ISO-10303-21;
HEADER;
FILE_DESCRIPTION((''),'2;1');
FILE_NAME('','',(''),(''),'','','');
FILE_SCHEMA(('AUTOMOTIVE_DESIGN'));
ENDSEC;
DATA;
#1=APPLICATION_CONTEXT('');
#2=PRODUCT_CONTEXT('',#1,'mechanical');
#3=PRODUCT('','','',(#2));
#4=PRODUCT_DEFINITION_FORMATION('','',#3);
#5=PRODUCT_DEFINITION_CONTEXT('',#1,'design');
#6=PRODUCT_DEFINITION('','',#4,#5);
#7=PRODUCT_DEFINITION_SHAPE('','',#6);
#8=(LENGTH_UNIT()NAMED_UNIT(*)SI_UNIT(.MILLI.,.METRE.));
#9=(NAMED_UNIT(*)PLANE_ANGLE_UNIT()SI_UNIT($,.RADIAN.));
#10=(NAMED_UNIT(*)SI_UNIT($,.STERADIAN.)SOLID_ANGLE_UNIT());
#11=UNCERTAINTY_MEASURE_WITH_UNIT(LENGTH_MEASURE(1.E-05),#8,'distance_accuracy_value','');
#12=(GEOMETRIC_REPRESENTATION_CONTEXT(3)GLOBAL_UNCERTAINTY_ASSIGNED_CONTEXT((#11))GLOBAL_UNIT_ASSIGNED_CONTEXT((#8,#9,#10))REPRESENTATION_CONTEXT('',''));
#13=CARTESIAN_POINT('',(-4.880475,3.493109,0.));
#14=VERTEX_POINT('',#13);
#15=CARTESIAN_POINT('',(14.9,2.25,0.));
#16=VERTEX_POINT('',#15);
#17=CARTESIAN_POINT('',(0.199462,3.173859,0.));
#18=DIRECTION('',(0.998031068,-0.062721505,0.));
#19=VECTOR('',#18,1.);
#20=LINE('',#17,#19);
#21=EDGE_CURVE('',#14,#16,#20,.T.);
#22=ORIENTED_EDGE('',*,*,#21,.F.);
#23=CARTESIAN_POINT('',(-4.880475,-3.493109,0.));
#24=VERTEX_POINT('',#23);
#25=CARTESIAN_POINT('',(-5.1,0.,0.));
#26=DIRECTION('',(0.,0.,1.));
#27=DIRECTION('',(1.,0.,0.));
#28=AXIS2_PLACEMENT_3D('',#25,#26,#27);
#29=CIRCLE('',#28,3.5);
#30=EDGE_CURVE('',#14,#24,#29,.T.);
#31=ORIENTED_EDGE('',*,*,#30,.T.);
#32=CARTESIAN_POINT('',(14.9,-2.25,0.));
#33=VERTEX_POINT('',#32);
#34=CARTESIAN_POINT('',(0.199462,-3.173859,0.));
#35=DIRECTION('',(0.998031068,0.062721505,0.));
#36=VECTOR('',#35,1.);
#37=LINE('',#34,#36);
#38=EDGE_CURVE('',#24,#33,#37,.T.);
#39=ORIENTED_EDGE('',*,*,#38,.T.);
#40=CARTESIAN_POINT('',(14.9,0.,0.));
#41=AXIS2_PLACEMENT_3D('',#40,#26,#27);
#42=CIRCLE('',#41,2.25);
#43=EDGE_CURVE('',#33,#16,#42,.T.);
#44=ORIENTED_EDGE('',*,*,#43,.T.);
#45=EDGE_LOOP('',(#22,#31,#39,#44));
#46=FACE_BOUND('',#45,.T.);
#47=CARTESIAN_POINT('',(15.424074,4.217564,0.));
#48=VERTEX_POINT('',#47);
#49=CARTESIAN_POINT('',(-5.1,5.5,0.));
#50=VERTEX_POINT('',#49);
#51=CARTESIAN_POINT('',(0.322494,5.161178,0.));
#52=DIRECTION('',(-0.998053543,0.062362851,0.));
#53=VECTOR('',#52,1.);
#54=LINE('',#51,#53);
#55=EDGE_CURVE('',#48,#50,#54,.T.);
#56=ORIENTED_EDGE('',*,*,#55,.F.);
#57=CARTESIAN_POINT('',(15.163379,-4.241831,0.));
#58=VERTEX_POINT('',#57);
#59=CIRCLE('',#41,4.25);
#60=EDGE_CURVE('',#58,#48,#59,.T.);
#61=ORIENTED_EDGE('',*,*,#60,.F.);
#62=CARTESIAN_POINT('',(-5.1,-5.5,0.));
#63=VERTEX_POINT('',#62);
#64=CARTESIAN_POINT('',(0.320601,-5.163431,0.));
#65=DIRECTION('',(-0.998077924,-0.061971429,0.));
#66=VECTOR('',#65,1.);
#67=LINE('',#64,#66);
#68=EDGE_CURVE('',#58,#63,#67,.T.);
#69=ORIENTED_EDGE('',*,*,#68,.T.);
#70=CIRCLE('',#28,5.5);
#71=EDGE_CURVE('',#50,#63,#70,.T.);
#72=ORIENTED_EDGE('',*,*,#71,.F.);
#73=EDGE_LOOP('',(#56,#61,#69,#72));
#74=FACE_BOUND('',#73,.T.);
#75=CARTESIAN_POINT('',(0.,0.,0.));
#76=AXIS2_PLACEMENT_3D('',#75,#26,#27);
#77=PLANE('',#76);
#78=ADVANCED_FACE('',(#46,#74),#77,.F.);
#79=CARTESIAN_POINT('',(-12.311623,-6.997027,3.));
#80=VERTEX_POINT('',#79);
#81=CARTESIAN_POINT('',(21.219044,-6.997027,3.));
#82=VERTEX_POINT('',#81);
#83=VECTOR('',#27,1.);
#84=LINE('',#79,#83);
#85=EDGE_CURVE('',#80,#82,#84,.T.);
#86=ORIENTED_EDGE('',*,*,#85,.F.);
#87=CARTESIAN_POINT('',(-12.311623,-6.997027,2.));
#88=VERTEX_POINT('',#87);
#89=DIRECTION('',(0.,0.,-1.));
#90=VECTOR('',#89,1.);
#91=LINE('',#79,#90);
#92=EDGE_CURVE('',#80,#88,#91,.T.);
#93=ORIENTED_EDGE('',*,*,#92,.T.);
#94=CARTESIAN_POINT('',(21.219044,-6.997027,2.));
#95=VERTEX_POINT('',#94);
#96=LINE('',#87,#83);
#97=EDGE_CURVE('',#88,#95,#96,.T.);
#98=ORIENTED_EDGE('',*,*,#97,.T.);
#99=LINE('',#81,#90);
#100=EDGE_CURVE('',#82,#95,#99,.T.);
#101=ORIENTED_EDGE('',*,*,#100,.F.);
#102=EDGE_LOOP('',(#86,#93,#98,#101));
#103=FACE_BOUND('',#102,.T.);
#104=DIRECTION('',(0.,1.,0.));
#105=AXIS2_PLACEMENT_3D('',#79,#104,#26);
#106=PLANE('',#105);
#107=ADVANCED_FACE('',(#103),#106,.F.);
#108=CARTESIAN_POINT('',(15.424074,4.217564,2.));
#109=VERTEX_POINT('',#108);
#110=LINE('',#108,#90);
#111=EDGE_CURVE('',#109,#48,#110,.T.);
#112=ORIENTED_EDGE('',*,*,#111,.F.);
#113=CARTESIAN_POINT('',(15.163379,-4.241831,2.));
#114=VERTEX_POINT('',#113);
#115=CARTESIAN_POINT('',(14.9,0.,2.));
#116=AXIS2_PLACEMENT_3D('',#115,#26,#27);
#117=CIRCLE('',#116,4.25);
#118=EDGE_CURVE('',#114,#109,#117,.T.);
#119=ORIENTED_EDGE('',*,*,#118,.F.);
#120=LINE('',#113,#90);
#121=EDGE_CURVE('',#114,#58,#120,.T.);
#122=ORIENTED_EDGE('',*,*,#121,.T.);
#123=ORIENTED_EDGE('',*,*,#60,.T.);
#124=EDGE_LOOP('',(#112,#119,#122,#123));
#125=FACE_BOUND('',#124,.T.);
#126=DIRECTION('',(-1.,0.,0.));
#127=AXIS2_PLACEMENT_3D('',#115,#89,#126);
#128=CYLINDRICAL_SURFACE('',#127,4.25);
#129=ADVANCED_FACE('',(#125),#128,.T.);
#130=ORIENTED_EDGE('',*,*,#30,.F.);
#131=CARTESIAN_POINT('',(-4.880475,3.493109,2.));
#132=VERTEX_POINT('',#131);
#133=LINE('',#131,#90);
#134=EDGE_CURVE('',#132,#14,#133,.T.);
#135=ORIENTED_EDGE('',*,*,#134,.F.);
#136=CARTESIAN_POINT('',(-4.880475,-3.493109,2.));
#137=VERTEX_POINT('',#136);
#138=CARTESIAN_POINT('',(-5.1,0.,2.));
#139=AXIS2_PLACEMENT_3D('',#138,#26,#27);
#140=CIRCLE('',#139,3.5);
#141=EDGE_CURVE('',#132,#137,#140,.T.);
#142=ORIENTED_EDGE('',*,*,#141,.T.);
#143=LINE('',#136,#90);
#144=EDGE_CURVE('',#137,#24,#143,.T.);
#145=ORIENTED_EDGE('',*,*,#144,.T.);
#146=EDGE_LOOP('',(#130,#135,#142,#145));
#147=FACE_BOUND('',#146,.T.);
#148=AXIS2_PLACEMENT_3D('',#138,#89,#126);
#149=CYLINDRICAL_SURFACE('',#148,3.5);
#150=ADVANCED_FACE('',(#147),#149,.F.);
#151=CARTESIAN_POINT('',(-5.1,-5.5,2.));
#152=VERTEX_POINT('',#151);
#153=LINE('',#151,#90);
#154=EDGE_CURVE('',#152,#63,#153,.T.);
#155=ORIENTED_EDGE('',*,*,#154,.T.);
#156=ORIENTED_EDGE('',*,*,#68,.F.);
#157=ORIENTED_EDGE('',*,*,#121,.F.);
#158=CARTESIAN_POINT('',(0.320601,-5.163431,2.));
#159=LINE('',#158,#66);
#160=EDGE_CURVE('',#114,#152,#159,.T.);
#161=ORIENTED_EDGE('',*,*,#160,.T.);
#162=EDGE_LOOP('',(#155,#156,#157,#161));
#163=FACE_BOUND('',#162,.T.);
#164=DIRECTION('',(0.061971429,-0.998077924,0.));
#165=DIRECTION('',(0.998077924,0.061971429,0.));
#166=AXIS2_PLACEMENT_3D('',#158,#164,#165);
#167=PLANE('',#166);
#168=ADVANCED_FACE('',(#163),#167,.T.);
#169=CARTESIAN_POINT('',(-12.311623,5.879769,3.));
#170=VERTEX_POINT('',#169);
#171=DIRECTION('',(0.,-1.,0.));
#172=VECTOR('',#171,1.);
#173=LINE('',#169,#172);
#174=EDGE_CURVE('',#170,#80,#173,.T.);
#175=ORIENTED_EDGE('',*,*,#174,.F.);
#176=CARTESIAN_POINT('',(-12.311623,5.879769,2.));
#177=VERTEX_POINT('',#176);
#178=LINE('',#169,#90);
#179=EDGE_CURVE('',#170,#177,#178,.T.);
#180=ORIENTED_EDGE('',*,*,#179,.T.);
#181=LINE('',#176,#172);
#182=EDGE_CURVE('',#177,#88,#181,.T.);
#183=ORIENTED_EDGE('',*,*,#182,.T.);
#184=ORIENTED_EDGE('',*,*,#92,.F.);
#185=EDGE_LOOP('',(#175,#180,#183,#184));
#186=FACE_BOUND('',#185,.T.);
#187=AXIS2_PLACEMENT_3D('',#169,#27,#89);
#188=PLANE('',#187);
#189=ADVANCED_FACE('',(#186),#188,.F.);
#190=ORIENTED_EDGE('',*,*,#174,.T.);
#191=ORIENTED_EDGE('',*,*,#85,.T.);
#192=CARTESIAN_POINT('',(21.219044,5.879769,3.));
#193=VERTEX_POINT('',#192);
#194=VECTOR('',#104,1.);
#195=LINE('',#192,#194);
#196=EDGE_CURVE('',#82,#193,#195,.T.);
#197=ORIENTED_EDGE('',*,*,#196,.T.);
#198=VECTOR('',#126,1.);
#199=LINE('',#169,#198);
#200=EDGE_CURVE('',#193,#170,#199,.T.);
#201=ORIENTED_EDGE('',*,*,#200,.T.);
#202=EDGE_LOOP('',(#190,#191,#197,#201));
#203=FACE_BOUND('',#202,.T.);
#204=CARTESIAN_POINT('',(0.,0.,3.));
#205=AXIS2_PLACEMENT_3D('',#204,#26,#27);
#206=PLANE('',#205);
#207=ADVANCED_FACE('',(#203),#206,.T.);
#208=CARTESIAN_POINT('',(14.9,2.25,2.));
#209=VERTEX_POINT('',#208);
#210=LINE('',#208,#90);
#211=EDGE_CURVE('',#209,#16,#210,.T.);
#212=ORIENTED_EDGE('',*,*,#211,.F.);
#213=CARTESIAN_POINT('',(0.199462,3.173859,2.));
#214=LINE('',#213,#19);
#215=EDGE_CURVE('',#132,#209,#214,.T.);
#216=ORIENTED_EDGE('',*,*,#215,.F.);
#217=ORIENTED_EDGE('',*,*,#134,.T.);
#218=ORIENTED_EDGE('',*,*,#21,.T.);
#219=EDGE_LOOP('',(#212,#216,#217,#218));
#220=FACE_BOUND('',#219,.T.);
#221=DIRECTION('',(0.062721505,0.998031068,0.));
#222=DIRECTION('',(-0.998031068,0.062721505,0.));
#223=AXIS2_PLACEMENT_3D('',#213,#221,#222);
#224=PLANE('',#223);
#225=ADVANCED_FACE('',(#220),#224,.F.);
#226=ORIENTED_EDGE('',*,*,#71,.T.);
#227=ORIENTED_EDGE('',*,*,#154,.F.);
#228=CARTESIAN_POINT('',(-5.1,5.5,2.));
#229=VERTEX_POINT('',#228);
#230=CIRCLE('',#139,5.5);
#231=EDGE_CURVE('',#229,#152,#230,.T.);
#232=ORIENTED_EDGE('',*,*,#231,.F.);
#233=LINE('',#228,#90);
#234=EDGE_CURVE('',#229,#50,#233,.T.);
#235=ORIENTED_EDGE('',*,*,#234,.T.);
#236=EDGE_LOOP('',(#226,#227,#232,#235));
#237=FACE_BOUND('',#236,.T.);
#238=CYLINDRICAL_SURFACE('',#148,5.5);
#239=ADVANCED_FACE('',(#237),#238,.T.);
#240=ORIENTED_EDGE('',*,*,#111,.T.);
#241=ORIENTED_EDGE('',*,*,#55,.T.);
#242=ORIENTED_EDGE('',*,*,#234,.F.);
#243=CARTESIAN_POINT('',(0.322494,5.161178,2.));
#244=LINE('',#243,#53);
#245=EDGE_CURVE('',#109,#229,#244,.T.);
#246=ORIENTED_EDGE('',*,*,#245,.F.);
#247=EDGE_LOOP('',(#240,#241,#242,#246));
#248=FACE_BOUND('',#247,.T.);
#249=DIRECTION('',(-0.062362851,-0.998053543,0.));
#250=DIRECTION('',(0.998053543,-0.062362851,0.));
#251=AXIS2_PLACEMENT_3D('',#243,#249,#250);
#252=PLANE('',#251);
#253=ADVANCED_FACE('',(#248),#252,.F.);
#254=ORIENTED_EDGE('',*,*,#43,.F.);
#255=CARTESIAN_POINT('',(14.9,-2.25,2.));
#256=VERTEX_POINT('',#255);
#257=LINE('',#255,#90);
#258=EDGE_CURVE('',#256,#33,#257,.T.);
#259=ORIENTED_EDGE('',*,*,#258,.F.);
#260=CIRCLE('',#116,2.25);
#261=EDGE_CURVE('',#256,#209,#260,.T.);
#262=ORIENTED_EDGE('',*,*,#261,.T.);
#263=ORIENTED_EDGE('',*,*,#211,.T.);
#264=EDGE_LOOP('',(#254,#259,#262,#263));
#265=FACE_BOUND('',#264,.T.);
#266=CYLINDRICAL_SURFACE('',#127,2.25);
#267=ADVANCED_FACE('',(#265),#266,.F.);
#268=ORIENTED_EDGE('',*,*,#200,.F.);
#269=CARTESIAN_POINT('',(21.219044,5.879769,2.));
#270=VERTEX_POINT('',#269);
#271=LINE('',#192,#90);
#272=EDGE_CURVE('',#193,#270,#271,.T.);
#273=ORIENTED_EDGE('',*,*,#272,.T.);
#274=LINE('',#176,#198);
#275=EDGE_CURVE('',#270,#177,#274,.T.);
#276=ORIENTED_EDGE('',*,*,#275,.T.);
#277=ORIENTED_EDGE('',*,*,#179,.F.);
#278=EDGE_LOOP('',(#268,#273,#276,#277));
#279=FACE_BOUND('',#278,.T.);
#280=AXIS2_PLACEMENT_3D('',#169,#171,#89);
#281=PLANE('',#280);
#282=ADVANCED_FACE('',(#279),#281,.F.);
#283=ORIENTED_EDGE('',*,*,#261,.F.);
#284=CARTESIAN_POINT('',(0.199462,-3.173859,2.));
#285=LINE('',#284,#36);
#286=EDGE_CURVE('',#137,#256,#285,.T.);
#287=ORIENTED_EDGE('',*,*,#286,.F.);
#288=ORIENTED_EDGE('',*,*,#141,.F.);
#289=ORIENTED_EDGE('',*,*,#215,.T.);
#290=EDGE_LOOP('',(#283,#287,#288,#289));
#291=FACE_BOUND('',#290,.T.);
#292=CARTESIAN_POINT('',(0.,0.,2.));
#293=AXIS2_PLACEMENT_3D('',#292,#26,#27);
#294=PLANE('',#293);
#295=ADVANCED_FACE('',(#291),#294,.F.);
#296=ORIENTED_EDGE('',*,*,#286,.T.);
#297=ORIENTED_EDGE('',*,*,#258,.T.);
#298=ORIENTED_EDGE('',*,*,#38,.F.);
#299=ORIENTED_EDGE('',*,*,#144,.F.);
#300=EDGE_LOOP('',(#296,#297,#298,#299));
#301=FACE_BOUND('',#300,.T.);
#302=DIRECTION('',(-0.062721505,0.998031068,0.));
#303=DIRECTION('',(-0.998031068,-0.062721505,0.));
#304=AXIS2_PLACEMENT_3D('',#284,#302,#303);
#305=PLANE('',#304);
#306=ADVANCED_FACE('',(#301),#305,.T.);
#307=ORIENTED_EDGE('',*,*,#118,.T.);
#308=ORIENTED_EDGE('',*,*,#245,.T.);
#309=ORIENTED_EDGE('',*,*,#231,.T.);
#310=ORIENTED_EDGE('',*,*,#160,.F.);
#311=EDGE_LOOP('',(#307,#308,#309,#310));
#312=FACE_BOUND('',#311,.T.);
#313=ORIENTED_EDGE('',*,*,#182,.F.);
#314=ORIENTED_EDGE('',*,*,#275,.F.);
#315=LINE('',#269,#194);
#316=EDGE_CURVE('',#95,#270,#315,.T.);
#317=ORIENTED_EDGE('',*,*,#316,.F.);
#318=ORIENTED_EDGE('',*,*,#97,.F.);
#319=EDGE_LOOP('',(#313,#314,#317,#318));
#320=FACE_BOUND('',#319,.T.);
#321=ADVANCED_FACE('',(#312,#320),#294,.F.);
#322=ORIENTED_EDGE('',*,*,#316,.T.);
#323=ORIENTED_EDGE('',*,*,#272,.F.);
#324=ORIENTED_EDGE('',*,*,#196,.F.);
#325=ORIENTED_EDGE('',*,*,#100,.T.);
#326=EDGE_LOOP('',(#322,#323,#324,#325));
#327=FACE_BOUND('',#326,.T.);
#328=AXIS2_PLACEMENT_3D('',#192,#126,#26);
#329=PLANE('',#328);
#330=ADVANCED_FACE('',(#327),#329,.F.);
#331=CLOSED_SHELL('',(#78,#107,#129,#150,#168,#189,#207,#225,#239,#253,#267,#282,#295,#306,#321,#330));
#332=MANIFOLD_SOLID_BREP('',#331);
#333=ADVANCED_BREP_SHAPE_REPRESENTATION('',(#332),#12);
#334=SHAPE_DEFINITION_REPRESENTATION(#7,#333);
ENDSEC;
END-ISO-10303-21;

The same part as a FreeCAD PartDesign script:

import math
import FreeCAD as App
import Part
import Sketcher

doc = App.newDocument("Part")
body = doc.addObject("PartDesign::Body", "Body")

# Sketch on XY plane
sketch1 = body.newObject("Sketcher::SketchObject", "Sketch")
sketch1.AttachmentSupport = (doc.getObject("XY_Plane"), [""])
sketch1.MapMode = "FlatFace"
sketch1.addGeometry([
    Part.LineSegment(App.Vector(-4.4, -5.5, 0), App.Vector(15.2, -4.2, 0)),  # 0
    Part.ArcOfCircle(Part.Circle(App.Vector(14.9, 0, 0), App.Vector(0, 0, 1), 4.2), math.radians(-86), math.radians(83)),  # 1
    Part.LineSegment(App.Vector(15.4, 4.2, 0), App.Vector(14.9, 4.2, 0)),  # 2
    Part.LineSegment(App.Vector(14.9, 4.2, 0), App.Vector(-4.4, 5.5, 0)),  # 3
    Part.LineSegment(App.Vector(-4.4, 5.5, 0), App.Vector(-5.1, 5.5, 0)),  # 4
    Part.ArcOfCircle(Part.Circle(App.Vector(-5.1, 0, 0), App.Vector(0, 0, 1), 5.5), math.radians(90), math.radians(270)),  # 5
    Part.LineSegment(App.Vector(-5.1, -5.5, 0), App.Vector(-4.4, -5.5, 0)),  # 6
    Part.ArcOfCircle(Part.Circle(App.Vector(14.9, 0, 0), App.Vector(0, 0, 1), 2.2), math.radians(-90), math.radians(90)),  # 7
    Part.LineSegment(App.Vector(14.9, -2.2, 0), App.Vector(-4.9, -3.5, 0)),  # 8
    Part.ArcOfCircle(Part.Circle(App.Vector(-5.1, 0, 0), App.Vector(0, 0, 1), 3.5), math.radians(86), math.radians(274)),  # 9
    Part.LineSegment(App.Vector(-4.9, 3.5, 0), App.Vector(14.9, 2.2, 0)),  # 10
], False)
sketch1.addConstraint([
    Sketcher.Constraint("Tangent", 0, 2, 1, 1),
    Sketcher.Constraint("Coincident", 1, 2, 2, 1),
    Sketcher.Constraint("Coincident", 2, 2, 3, 1),
    Sketcher.Constraint("Coincident", 3, 2, 4, 1),
    Sketcher.Constraint("Coincident", 4, 2, 5, 1),
    Sketcher.Constraint("Coincident", 5, 2, 6, 1),
    Sketcher.Constraint("Coincident", 6, 2, 0, 1),
    Sketcher.Constraint("Coincident", 7, 1, 8, 1),
    Sketcher.Constraint("Tangent", 8, 2, 9, 2),
    Sketcher.Constraint("Tangent", 9, 1, 10, 1),
    Sketcher.Constraint("Coincident", 10, 2, 7, 2),
    Sketcher.Constraint("Coincident", 7, 3, 1, 3),
    Sketcher.Constraint("Coincident", 9, 3, 5, 3),
    Sketcher.Constraint("Symmetric", 4, 2, 5, 2, -1),
    Sketcher.Constraint("Symmetric", 7, 1, 10, 2, -1),
    Sketcher.Constraint("Parallel", 2, 3),
    Sketcher.Constraint("Parallel", 3, 4),
    Sketcher.Constraint("Parallel", 0, 6),
    Sketcher.Constraint("Vertical", 9, 3, 4, 2),
    Sketcher.Constraint("Vertical", 1, 3, 7, 1),
    Sketcher.Constraint("Radius", 5, 5.5),
    Sketcher.Constraint("Radius", 9, 3.5),
    Sketcher.Constraint("Radius", 1, 4.25),
    Sketcher.Constraint("Radius", 7, 2.25),
    Sketcher.Constraint("DistanceX", 5, 3, 1, 3, 20.0),
    Sketcher.Constraint("DistanceX", -1, 1, 1, 3, 14.9),
    Sketcher.Constraint("Distance", 2, 0.52007),
    Sketcher.Constraint("Distance", 3, 19.35804),
    Sketcher.Constraint("Distance", 4, 0.685991),
    Sketcher.Constraint("DistanceX", 6, 2, 3, 2, 0.004281),
])
pad1 = body.newObject("PartDesign::Pad", "Pad")
pad1.Profile = sketch1
pad1.Length = 2

# Sketch on XY plane
sketch2 = body.newObject("Sketcher::SketchObject", "Sketch001")
sketch2.AttachmentSupport = (doc.getObject("XY_Plane"), [""])
sketch2.MapMode = "FlatFace"
sketch2.AttachmentOffset = App.Placement(App.Vector(0, 0, 2), App.Rotation())
sketch2.addGeometry([
    Part.LineSegment(App.Vector(-12, 6, 0), App.Vector(-12, -7, 0)),
    Part.LineSegment(App.Vector(-12, -7, 0), App.Vector(21, -7, 0)),
    Part.LineSegment(App.Vector(21, -7, 0), App.Vector(21, 6, 0)),
    Part.LineSegment(App.Vector(21, 6, 0), App.Vector(-12, 6, 0)),
], False)
sketch2.addConstraint([
    Sketcher.Constraint("Coincident", 0, 2, 1, 1),
    Sketcher.Constraint("Coincident", 1, 2, 2, 1),
    Sketcher.Constraint("Coincident", 2, 2, 3, 1),
    Sketcher.Constraint("Coincident", 3, 2, 0, 1),
    Sketcher.Constraint("Vertical", 0),
    Sketcher.Constraint("Horizontal", 1),
    Sketcher.Constraint("Vertical", 2),
    Sketcher.Constraint("Horizontal", 3),
    Sketcher.Constraint("DistanceX", 1, 1, 1, 2, 33.530668),
    Sketcher.Constraint("DistanceY", 0, 2, 0, 1, 12.876796),
    Sketcher.Constraint("DistanceY", -1, 1, 2, 2, 5.879769),
    Sketcher.Constraint("DistanceX", 0, 2, -1, 1, 12.311623),
])
pad2 = body.newObject("PartDesign::Pad", "Pad001")
pad2.Profile = sketch2
pad2.Length = 1

doc.recompute()
